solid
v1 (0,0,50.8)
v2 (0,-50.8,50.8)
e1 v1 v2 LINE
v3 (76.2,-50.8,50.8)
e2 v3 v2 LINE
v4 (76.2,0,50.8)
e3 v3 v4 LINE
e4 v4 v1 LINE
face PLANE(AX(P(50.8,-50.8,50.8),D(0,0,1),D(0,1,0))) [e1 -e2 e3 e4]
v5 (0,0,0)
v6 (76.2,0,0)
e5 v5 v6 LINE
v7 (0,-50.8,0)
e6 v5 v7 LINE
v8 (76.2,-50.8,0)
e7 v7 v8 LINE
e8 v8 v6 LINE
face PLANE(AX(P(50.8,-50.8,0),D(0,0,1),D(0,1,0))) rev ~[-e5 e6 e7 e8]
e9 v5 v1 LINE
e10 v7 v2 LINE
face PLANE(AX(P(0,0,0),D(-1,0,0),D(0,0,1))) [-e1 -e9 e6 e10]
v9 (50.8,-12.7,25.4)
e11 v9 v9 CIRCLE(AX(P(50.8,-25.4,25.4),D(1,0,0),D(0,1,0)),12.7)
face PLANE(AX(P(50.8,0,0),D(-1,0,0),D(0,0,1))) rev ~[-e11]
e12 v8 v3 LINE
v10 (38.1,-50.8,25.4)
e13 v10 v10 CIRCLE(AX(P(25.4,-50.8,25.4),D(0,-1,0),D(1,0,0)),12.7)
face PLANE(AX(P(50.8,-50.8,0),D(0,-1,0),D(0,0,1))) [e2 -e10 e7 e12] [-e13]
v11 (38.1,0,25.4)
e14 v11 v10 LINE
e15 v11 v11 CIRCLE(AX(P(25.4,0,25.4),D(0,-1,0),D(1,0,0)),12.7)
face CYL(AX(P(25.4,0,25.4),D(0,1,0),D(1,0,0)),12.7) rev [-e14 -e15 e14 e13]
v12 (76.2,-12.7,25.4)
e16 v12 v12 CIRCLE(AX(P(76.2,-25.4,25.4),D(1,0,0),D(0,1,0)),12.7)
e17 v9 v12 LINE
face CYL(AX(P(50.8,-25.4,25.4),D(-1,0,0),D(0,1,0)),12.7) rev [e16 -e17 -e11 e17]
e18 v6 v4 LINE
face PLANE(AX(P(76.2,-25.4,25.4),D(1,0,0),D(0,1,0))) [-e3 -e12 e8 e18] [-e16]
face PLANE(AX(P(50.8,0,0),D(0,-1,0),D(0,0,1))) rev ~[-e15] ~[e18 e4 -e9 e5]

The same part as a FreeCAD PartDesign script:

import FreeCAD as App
import Part
import Sketcher
from FreeCAD import Vector
Q = App.Units.Quantity


def add_polygon(sketch, points):
    """Adds a closed chain of lines whose ends are joined by coincident constraints."""
    first, n = sketch.GeometryCount, len(points)
    for a, b in zip(points, points[1:] + points[:1]):
        sketch.addGeometry(Part.LineSegment(App.Vector(*a, 0), App.Vector(*b, 0)), False)
    for i in range(n):
        sketch.addConstraint(Sketcher.Constraint("Coincident", first + i, 2, first + (i + 1) % n, 1))

doc = App.newDocument("Part")
body = doc.addObject("PartDesign::Body", "Body")

# Sketch on XZ plane
sketch1 = body.newObject("Sketcher::SketchObject", "Sketch")
sketch1.AttachmentSupport = (doc.getObject("XZ_Plane"), [""])
sketch1.MapMode = "FlatFace"
add_polygon(sketch1, [(0, 51), (0, 0), (51, 0), (51, 51)])  # lines 0-3
sketch1.addGeometry(Part.Circle(Vector(25, 25, 0), Vector(0, 0, 1), 13), False)  # 4
sketch1.addConstraint([
    Sketcher.Constraint("Vertical", 0),
    Sketcher.Constraint("Horizontal", 1),
    Sketcher.Constraint("Vertical", 2),
    Sketcher.Constraint("Horizontal", 3),
    Sketcher.Constraint("Coincident", 0, 2, -1, 1),
    Sketcher.Constraint("Equal", 3, 0),
    Sketcher.Constraint("Diameter", 4, Q("1 in")),
    Sketcher.Constraint("DistanceX", 1, 1, 1, 2, Q("2 in")),
    Sketcher.Constraint("DistanceX", -1, 1, 4, 3, Q("1 in")),
    Sketcher.Constraint("DistanceY", -1, 1, 4, 3, Q("1 in")),
])
pad1 = body.newObject("PartDesign::Pad", "Pad")
pad1.Profile = sketch1
pad1.Length = Q("2 in")

# Sketch on YZ plane
sketch2 = body.newObject("Sketcher::SketchObject", "Sketch001")
sketch2.AttachmentSupport = (doc.getObject("YZ_Plane"), [""])
sketch2.MapMode = "FlatFace"
sketch2.AttachmentOffset = App.Placement(Vector(0, 0, 2 * 25.4), App.Rotation())
add_polygon(sketch2, [(-51, 51), (-51, 0), (0, 0), (0, 51)])  # lines 0-3
sketch2.addGeometry(Part.Circle(Vector(-25, 25, 0), Vector(0, 0, 1), 13), False)  # 4
sketch2.addConstraint([
    Sketcher.Constraint("Vertical", 0),
    Sketcher.Constraint("Horizontal", 1),
    Sketcher.Constraint("Vertical", 2),
    Sketcher.Constraint("Horizontal", 3),
    Sketcher.Constraint("Coincident", 1, 2, -1, 1),
    Sketcher.Constraint("Equal", 3, 0),
    Sketcher.Constraint("Diameter", 4, Q("1 in")),
    Sketcher.Constraint("DistanceX", 1, 1, 1, 2, Q("2 in")),
    Sketcher.Constraint("DistanceX", 4, 3, -1, 1, Q("1 in")),
    Sketcher.Constraint("DistanceY", -1, 1, 4, 3, Q("1 in")),
])
pad2 = body.newObject("PartDesign::Pad", "Pad001")
pad2.Profile = sketch2
pad2.Length = Q("1 in")

doc.recompute()
